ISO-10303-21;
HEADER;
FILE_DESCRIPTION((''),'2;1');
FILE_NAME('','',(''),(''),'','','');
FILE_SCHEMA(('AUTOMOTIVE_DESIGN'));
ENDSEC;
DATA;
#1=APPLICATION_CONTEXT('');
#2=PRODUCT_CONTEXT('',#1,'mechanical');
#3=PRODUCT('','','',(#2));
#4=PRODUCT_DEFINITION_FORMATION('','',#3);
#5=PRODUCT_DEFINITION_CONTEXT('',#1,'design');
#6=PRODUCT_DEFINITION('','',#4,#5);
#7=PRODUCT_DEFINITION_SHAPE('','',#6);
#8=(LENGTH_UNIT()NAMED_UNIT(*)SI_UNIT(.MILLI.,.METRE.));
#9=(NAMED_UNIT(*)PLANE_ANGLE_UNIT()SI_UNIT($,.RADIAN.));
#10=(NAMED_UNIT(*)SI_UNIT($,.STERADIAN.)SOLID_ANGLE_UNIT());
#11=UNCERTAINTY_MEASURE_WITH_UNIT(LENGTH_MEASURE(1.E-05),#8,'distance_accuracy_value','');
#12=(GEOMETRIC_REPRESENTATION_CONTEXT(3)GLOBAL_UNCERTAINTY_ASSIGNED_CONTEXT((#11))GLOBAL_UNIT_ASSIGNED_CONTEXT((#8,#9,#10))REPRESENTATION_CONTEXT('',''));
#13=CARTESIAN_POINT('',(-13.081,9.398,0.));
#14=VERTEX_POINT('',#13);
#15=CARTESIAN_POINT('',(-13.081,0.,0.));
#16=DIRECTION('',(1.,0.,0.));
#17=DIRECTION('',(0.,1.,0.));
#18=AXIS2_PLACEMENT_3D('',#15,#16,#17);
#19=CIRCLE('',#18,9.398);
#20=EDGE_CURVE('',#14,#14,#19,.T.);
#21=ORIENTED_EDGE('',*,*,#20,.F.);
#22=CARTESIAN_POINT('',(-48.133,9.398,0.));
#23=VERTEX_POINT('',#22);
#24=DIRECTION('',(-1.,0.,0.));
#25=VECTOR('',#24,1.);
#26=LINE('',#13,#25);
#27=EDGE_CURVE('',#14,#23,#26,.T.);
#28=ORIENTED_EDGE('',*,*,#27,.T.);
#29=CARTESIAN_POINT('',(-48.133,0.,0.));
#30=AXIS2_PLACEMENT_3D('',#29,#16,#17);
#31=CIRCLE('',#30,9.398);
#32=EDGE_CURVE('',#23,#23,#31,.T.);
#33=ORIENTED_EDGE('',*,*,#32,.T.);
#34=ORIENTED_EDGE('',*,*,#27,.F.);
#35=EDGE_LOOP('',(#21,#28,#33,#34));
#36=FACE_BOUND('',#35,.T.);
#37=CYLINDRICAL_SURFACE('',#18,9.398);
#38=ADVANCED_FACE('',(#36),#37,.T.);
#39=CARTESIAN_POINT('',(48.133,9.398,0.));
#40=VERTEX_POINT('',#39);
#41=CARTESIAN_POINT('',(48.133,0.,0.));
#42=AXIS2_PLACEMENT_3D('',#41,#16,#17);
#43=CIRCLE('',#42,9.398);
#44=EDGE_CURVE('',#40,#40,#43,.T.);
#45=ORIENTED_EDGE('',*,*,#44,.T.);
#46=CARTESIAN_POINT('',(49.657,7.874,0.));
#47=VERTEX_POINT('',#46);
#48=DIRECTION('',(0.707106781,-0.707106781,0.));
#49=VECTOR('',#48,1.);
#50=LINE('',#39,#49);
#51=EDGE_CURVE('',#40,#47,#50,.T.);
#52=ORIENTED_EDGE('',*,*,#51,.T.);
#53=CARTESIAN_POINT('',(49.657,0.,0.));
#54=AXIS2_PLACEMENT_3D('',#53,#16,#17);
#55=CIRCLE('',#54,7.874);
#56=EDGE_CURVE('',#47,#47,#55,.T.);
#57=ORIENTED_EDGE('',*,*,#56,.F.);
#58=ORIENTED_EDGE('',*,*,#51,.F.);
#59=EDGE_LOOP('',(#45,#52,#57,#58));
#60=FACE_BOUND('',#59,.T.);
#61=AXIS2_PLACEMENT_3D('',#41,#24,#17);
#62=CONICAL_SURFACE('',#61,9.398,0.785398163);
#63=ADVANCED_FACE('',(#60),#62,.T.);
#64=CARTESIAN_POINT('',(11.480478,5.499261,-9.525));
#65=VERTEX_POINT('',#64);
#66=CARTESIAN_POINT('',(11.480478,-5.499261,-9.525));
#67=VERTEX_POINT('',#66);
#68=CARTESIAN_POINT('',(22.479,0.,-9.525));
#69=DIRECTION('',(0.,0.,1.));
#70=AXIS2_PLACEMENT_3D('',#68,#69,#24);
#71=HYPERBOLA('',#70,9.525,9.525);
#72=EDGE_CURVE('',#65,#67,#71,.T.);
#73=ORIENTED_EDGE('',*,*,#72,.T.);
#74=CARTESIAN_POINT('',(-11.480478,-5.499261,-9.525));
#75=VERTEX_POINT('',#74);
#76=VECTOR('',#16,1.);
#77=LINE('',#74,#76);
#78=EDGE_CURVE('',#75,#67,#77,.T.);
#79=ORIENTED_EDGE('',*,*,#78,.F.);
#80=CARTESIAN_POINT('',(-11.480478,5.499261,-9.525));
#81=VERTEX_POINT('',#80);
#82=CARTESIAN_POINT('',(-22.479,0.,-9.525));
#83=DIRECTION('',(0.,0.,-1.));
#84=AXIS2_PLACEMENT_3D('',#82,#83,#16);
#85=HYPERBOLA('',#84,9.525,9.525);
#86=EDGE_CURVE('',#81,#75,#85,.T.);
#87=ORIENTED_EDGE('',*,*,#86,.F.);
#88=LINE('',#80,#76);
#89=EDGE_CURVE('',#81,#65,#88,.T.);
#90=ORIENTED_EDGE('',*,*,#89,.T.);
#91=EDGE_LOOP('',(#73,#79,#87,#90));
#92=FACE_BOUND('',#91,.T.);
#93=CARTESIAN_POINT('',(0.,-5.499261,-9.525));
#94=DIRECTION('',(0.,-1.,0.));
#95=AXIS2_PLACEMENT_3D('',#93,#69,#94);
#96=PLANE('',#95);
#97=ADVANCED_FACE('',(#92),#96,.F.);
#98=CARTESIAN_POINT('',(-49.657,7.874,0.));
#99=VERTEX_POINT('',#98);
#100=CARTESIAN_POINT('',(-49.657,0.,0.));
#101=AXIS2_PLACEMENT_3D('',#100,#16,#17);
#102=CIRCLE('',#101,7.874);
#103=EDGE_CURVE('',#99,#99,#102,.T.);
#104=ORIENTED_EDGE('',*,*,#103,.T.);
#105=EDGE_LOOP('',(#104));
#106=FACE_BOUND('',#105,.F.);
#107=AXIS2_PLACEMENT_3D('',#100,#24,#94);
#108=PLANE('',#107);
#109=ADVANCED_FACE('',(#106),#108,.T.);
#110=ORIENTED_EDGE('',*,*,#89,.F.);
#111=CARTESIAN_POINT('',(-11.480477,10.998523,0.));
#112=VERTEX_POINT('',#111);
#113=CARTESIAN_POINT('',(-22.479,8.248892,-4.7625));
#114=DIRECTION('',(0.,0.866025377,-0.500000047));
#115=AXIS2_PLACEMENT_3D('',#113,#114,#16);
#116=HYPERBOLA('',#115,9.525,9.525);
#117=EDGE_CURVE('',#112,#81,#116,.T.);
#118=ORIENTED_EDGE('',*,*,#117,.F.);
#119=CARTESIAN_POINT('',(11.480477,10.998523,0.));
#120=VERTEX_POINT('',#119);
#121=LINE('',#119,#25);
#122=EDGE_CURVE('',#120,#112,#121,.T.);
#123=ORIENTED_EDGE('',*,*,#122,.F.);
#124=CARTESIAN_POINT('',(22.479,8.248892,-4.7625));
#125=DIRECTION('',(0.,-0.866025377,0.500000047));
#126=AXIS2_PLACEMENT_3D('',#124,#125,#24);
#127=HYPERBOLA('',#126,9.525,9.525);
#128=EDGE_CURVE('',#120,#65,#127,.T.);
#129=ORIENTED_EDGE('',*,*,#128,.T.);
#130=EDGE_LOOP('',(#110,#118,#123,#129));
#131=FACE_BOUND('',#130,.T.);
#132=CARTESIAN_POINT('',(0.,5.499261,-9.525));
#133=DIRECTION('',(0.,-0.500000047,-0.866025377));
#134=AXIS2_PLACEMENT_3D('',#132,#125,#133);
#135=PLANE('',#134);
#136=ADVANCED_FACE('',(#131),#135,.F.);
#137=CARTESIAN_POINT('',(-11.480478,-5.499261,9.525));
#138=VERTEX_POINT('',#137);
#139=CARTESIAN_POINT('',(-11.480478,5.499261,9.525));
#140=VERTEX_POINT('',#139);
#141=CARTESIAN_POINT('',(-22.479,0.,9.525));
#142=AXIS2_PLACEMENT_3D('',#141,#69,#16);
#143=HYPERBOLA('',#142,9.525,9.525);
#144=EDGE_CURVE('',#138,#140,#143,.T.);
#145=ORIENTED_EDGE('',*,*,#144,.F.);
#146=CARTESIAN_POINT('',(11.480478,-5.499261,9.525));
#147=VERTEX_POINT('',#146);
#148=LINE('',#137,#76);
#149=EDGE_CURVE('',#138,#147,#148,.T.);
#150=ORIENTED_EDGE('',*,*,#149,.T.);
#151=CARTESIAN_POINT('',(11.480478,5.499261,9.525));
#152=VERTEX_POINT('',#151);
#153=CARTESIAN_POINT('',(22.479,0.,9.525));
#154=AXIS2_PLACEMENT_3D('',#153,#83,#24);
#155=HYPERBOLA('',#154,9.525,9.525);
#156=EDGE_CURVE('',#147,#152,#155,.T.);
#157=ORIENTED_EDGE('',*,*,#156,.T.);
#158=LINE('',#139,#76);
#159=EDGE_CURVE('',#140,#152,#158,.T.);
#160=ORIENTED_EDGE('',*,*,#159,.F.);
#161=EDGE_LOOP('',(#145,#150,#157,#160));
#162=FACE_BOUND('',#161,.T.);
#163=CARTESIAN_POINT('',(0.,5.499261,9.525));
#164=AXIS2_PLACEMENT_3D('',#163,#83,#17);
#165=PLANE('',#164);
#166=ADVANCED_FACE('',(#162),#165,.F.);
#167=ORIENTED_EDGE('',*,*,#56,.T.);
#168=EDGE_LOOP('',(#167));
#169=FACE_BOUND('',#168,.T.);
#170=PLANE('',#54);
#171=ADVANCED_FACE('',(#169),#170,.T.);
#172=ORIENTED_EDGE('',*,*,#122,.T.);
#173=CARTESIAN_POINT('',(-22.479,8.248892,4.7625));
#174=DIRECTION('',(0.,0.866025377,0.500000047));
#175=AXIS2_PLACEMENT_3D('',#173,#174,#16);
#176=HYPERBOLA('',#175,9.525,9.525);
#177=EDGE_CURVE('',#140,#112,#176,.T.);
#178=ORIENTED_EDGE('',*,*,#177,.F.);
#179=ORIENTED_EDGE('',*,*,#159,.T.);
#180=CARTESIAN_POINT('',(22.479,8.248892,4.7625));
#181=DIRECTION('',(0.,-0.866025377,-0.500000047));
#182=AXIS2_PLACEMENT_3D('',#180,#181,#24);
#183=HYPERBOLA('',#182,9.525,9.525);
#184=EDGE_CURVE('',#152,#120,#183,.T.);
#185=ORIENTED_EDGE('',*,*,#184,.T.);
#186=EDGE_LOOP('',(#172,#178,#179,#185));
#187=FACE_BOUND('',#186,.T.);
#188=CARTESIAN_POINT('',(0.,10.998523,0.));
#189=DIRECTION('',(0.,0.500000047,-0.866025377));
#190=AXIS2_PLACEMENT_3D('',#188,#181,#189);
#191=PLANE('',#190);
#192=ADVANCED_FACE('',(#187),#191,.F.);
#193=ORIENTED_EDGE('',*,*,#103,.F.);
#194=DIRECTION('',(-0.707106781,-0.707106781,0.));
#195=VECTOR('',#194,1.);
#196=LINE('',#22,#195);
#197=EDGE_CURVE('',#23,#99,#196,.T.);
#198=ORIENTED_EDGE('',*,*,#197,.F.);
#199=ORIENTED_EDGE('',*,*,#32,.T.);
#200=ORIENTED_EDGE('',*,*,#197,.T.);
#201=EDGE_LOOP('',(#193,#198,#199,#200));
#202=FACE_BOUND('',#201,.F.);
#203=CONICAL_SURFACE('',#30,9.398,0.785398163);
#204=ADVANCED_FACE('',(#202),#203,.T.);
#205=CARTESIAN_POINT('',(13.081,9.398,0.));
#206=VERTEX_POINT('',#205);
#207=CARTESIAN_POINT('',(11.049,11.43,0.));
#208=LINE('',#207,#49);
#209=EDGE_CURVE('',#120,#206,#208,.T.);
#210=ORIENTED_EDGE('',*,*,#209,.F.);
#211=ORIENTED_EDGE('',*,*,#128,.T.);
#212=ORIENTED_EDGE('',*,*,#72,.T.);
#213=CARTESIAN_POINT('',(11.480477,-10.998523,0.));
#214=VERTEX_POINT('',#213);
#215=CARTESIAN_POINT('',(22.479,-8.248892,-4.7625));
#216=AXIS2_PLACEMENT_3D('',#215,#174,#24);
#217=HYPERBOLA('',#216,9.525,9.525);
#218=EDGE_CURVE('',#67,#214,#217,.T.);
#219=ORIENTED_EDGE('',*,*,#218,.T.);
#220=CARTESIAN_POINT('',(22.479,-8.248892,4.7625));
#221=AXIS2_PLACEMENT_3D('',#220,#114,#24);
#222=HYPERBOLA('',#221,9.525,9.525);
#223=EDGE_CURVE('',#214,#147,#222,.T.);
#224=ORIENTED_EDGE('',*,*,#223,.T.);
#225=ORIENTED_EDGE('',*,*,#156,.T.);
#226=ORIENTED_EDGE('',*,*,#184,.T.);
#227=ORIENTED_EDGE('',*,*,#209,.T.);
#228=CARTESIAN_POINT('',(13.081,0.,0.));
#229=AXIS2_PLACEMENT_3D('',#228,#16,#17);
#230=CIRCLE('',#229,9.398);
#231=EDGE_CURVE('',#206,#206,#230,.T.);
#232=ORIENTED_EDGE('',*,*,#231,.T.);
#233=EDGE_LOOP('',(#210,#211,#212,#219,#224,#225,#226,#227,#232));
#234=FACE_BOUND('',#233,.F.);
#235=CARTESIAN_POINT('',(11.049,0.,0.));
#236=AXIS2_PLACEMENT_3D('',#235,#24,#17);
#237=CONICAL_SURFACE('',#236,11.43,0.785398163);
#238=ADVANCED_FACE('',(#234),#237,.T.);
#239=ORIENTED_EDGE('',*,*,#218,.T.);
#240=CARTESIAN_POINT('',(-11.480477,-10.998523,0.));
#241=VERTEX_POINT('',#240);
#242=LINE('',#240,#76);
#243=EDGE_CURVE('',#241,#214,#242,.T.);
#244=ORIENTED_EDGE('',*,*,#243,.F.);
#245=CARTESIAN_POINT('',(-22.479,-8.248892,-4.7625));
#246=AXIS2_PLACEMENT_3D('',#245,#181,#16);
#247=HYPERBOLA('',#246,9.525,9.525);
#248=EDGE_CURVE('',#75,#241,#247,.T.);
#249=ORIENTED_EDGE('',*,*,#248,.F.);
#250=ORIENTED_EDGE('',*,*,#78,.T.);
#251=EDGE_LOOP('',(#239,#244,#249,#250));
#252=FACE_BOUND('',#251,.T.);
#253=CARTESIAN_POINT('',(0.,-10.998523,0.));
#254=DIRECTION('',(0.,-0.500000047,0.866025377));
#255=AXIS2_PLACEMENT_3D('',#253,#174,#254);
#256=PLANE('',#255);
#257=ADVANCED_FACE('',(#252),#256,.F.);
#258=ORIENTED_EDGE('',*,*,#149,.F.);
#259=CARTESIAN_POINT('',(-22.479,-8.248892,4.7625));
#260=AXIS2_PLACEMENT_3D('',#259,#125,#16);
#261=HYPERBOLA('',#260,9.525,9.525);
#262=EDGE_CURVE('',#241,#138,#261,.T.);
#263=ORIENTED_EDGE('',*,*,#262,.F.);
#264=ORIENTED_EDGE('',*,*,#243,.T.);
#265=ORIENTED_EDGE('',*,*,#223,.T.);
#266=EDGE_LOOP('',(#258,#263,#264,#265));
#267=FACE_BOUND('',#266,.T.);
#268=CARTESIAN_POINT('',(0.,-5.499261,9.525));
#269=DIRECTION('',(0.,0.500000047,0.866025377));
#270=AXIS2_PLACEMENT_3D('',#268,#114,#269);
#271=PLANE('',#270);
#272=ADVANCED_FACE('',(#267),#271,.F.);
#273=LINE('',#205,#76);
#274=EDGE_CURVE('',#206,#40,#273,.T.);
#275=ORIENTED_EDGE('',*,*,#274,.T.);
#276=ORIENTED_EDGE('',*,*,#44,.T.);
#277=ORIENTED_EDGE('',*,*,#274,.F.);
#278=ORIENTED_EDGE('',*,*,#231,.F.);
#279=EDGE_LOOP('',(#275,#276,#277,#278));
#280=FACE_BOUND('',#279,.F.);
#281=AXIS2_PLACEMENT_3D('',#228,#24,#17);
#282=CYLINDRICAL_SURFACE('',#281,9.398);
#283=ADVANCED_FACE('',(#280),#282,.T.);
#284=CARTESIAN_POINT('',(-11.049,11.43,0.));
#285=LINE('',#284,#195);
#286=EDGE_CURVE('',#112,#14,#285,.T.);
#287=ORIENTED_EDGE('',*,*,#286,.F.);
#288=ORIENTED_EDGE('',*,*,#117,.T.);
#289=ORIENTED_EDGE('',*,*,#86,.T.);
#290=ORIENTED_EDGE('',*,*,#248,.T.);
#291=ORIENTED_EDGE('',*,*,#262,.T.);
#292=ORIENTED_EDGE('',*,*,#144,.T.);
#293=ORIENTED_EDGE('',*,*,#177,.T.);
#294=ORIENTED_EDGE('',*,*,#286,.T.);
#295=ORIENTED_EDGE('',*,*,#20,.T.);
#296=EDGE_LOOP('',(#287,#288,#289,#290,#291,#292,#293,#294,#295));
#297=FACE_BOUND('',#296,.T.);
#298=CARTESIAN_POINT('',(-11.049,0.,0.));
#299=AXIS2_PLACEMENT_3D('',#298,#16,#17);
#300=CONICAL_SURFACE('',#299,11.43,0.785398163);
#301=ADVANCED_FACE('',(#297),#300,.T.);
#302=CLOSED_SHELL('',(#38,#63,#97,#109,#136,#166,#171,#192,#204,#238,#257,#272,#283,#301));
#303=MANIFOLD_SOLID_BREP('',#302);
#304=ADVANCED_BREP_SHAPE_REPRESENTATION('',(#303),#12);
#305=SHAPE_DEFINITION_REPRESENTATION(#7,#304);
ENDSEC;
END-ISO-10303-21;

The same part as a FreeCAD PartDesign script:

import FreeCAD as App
import Part
import Sketcher
Q = App.Units.Quantity


def edges_at(feature, points):
    """Names of the edges that pass closest to the given points."""
    edges = feature.Shape.Edges
    near = lambda p: min(range(len(edges)), key=lambda i: edges[i].distToShape(Part.Vertex(*p))[0])
    return sorted({f"Edge{near(p) + 1}" for p in points})

doc = App.newDocument("Part")
params = doc.addObject("Spreadsheet::Sheet", "Params")
for row, (alias, value) in enumerate([
    ("pad1_length", "0.515 in"),
    ("sketch2_diameter", "0.74 in"),
    ("pad2_length", "1.44 in"),
    ("chamfer_size", "0.06 in"),
    ("sketch3_width", "0.08 in"),
    ("groove_angle", "360 deg"),
], start=1):
    params.set(f"A{row}", alias)
    params.set(f"B{row}", "=" + value)
    params.setAlias(f"B{row}", alias)

body = doc.addObject("PartDesign::Body", "Body")

# Sketch on YZ plane
sketch1 = body.newObject("Sketcher::SketchObject", "Sketch")
sketch1.AttachmentSupport = (doc.getObject("YZ_Plane"), [""])
sketch1.MapMode = "FlatFace"
sketch1.addGeometry([
    Part.LineSegment(App.Vector(5, -10, 0), App.Vector(11, 0, 0)),  # 0
    Part.LineSegment(App.Vector(11, 0, 0), App.Vector(5, 10, 0)),  # 1
    Part.LineSegment(App.Vector(5, 10, 0), App.Vector(-5, 10, 0)),  # 2
    Part.LineSegment(App.Vector(-5, 10, 0), App.Vector(-11, 0, 0)),  # 3
    Part.LineSegment(App.Vector(-11, 0, 0), App.Vector(-5, -10, 0)),  # 4
    Part.LineSegment(App.Vector(-5, -10, 0), App.Vector(5, -10, 0)),  # 5
], False)
sketch1.addConstraint([
    Sketcher.Constraint("Coincident", 0, 2, 1, 1),
    Sketcher.Constraint("Coincident", 1, 2, 2, 1),
    Sketcher.Constraint("Coincident", 2, 2, 3, 1),
    Sketcher.Constraint("Coincident", 3, 2, 4, 1),
    Sketcher.Constraint("Coincident", 4, 2, 5, 1),
    Sketcher.Constraint("Coincident", 5, 2, 0, 1),
    Sketcher.Constraint("Horizontal", 2),
    Sketcher.Constraint("Horizontal", 5),
    Sketcher.Constraint("Symmetric", 0, 2, 3, 2, -1, 1),
    Sketcher.Constraint("Symmetric", 1, 2, 4, 2, -1, 1),
    Sketcher.Constraint("PointOnObject", 0, 2, -1),
    Sketcher.Constraint("Parallel", 0, 3),
    Sketcher.Constraint("Vertical", 2, 2, 4, 2),
    Sketcher.Constraint("Angle", 0, Q("59.999997 deg")),
    Sketcher.Constraint("DistanceY", 4, 2, 2, 2, Q("0.75 in")),
    Sketcher.Constraint("DistanceX", 2, 2, 2, 1, 10.998522),
])
pad1 = body.newObject("PartDesign::Pad", "Pad")
pad1.Profile = sketch1
pad1.setExpression("Length", "Params.pad1_length")

# Sketch on YZ plane
sketch2 = body.newObject("Sketcher::SketchObject", "Sketch001")
sketch2.AttachmentSupport = (doc.getObject("YZ_Plane"), [""])
sketch2.MapMode = "FlatFace"
sketch2.AttachmentOffset = App.Placement(App.Vector(0, 0, 0.515 * 25.4), App.Rotation())
sketch2.addGeometry(Part.Circle(App.Vector(0, 0, 0), App.Vector(0, 0, 1), 9), False)
sketch2.addConstraint([
    Sketcher.Constraint("Coincident", 0, 3, -1, 1),
    Sketcher.Constraint("Diameter", 0, Q("0.74 in")),
])
sketch2.setExpression("Constraints[1]", "Params.sketch2_diameter")
pad2 = body.newObject("PartDesign::Pad", "Pad001")
pad2.Profile = sketch2
pad2.setExpression("Length", "Params.pad2_length")
doc.recompute()

chamfer = body.newObject("PartDesign::Chamfer", "Chamfer")
chamfer.Base = (pad2, edges_at(pad2, [(49.657, -9.398, 0)]))
chamfer.setExpression("Size", "Params.chamfer_size")

# Sketch on XY plane
sketch3 = body.newObject("Sketcher::SketchObject", "Sketch002")
sketch3.AttachmentSupport = (doc.getObject("XY_Plane"), [""])
sketch3.MapMode = "FlatFace"
sketch3.addGeometry([
    Part.LineSegment(App.Vector(13.1, 9.4, 0), App.Vector(13.1, 11.4, 0)),
    Part.LineSegment(App.Vector(13.1, 11.4, 0), App.Vector(11, 11.4, 0)),
    Part.LineSegment(App.Vector(11, 11.4, 0), App.Vector(13.1, 9.4, 0)),
], False)
sketch3.addConstraint([
    Sketcher.Constraint("Coincident", 0, 2, 1, 1),
    Sketcher.Constraint("Coincident", 1, 2, 2, 1),
    Sketcher.Constraint("Coincident", 2, 2, 0, 1),
    Sketcher.Constraint("Vertical", 0),
    Sketcher.Constraint("Horizontal", 1),
    Sketcher.Constraint("Equal", 1, 0),
    Sketcher.Constraint("DistanceX", 1, 2, 1, 1, Q("0.08 in")),
    Sketcher.Constraint("DistanceY", -1, 1, 0, 2, Q("0.45 in")),
    Sketcher.Constraint("DistanceX", -1, 1, 0, 2, Q("0.515 in")),
])
sketch3.setExpression("Constraints[6]", "Params.sketch3_width")
groove = body.newObject("PartDesign::Groove", "Groove")
groove.Profile = sketch3
groove.ReferenceAxis = (sketch3, ["H_Axis"])
groove.setExpression("Angle", "Params.groove_angle")
body2 = doc.addObject("PartDesign::Body", "Body001")
doc.recompute()

body2.BaseFeature = body
doc.recompute()

mirroring = doc.addObject("Part::Mirroring", "Mirroring")
mirroring.Source = body
mirroring.Base = App.Vector(0, 0, 0)
mirroring.Normal = App.Vector(-1, 0, 0)
body3 = doc.addObject("PartDesign::Body", "Body002")
body3.BaseFeature = mirroring
boolean = body2.newObject("PartDesign::Boolean", "Boolean")
boolean.Type = "Fuse"
boolean.addObjects([body3])
doc.recompute()
mirroring.Visibility = False

doc.recompute()
